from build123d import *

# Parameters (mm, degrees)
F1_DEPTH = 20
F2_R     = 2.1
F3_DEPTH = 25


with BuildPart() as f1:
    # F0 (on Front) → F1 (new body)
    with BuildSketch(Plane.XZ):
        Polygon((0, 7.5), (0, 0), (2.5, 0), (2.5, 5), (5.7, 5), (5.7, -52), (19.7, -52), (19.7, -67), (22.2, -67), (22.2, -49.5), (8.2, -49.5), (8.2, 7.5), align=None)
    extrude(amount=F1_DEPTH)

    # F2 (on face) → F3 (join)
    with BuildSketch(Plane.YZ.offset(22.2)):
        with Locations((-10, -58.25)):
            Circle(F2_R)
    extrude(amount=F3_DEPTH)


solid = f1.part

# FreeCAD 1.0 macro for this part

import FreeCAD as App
import Part
import Sketcher
Q = App.Units.Quantity

doc = App.newDocument("Part")
params = doc.addObject("Spreadsheet::Sheet", "Params")
for row, (alias, value) in enumerate([
    ("sketch1_width", "14 mm"),
    ("sketch1_height", "5 mm"),
    ("sketch1_height2", "57 mm"),
    ("sketch1_height3", "15 mm"),
    ("sketch1_width2", "2.5 mm"),
    ("pad1_length", "20 mm"),
    ("sketch2_diameter", "4.2 mm"),
    ("pad2_length", "25 mm"),
], start=1):
    params.set(f"A{row}", alias)
    params.set(f"B{row}", "=" + value)
    params.setAlias(f"B{row}", alias)

body = doc.addObject("PartDesign::Body", "Body")

# Sketch on XZ plane
sketch1 = doc.addObject("Sketcher::SketchObject", "Sketch")
body.addObject(sketch1)
sketch1.AttachmentSupport = (doc.XZ_Plane, [""])
sketch1.MapMode = "FlatFace"
sketch1.addGeometry([
    Part.LineSegment(App.Vector(0, 7.5, 0), App.Vector(0, 0, 0)),  # 0
    Part.LineSegment(App.Vector(0, 0, 0), App.Vector(2.5, 0, 0)),  # 1
    Part.LineSegment(App.Vector(2.5, 0, 0), App.Vector(2.5, 5, 0)),  # 2
    Part.LineSegment(App.Vector(2.5, 5, 0), App.Vector(5.7, 5, 0)),  # 3
    Part.LineSegment(App.Vector(5.7, 5, 0), App.Vector(5.7, -52, 0)),  # 4
    Part.LineSegment(App.Vector(5.7, -52, 0), App.Vector(19.7, -52, 0)),  # 5
    Part.LineSegment(App.Vector(19.7, -52, 0), App.Vector(19.7, -67, 0)),  # 6
    Part.LineSegment(App.Vector(19.7, -67, 0), App.Vector(22.2, -67, 0)),  # 7
    Part.LineSegment(App.Vector(22.2, -67, 0), App.Vector(22.2, -49.5, 0)),  # 8
    Part.LineSegment(App.Vector(22.2, -49.5, 0), App.Vector(8.2, -49.5, 0)),  # 9
    Part.LineSegment(App.Vector(8.2, -49.5, 0), App.Vector(8.2, 7.5, 0)),  # 10
    Part.LineSegment(App.Vector(8.2, 7.5, 0), App.Vector(0, 7.5, 0)),  # 11
], False)
sketch1.addConstraint([
    Sketcher.Constraint("Coincident", 0, 2, 1, 1),
    Sketcher.Constraint("Coincident", 1, 2, 2, 1),
    Sketcher.Constraint("Coincident", 2, 2, 3, 1),
    Sketcher.Constraint("Coincident", 3, 2, 4, 1),
    Sketcher.Constraint("Coincident", 4, 2, 5, 1),
    Sketcher.Constraint("Coincident", 5, 2, 6, 1),
    Sketcher.Constraint("Coincident", 6, 2, 7, 1),
    Sketcher.Constraint("Coincident", 7, 2, 8, 1),
    Sketcher.Constraint("Coincident", 8, 2, 9, 1),
    Sketcher.Constraint("Coincident", 9, 2, 10, 1),
    Sketcher.Constraint("Coincident", 10, 2, 11, 1),
    Sketcher.Constraint("Coincident", 11, 2, 0, 1),
    Sketcher.Constraint("Vertical", 0),
    Sketcher.Constraint("Horizontal", 1),
    Sketcher.Constraint("Vertical", 2),
    Sketcher.Constraint("Horizontal", 3),
    Sketcher.Constraint("Vertical", 4),
    Sketcher.Constraint("Horizontal", 5),
    Sketcher.Constraint("Vertical", 6),
    Sketcher.Constraint("Horizontal", 7),
    Sketcher.Constraint("Vertical", 8),
    Sketcher.Constraint("Horizontal", 9),
    Sketcher.Constraint("Vertical", 10),
    Sketcher.Constraint("Horizontal", 11),
    Sketcher.Constraint("Coincident", 0, 2, -1, 1),
    Sketcher.Constraint("Equal", 1, 7),
    Sketcher.Constraint("Equal", 5, 9),
    Sketcher.Constraint("Equal", 4, 10),
    Sketcher.Constraint("DistanceX", 5, 1, 5, 2, Q("14 mm")),
    Sketcher.Constraint("DistanceY", 2, 1, 2, 2, Q("5 mm")),
    Sketcher.Constraint("DistanceY", 4, 2, 4, 1, Q("57 mm")),
    Sketcher.Constraint("DistanceY", 6, 2, 6, 1, Q("15 mm")),
    Sketcher.Constraint("DistanceX", 1, 1, 1, 2, Q("2.5 mm")),
    Sketcher.Constraint("DistanceX", 3, 1, 3, 2, Q("3.2 mm")),
    Sketcher.Constraint("DistanceY", 0, 2, 0, 1, Q("7.5 mm")),
])
sketch1.setExpression("Constraints[28]", "Params.sketch1_width")
sketch1.setExpression("Constraints[29]", "Params.sketch1_height")
sketch1.setExpression("Constraints[30]", "Params.sketch1_height2")
sketch1.setExpression("Constraints[31]", "Params.sketch1_height3")
sketch1.setExpression("Constraints[32]", "Params.sketch1_width2")
pad1 = doc.addObject("PartDesign::Pad", "Pad")
body.addObject(pad1)
pad1.Profile = sketch1
pad1.setExpression("Length", "Params.pad1_length")

# Sketch on YZ plane
sketch2 = doc.addObject("Sketcher::SketchObject", "Sketch001")
body.addObject(sketch2)
sketch2.AttachmentSupport = (doc.YZ_Plane, [""])
sketch2.MapMode = "FlatFace"
sketch2.AttachmentOffset = App.Placement(App.Vector(0, 0, 22.2), App.Rotation())
sketch2.addGeometry(Part.Circle(App.Vector(-10, -58.2, 0), App.Vector(0, 0, 1), 2.1), False)
sketch2.addConstraint([
    Sketcher.Constraint("Diameter", 0, Q("4.2 mm")),
    Sketcher.Constraint("DistanceX", 0, 3, -1, 1, Q("10 mm")),
    Sketcher.Constraint("DistanceY", 0, 3, -1, 1, Q("58.25 mm")),
])
sketch2.setExpression("Constraints[0]", "Params.sketch2_diameter")
pad2 = doc.addObject("PartDesign::Pad", "Pad001")
body.addObject(pad2)
pad2.Profile = sketch2
pad2.setExpression("Length", "Params.pad2_length")

doc.recompute()
